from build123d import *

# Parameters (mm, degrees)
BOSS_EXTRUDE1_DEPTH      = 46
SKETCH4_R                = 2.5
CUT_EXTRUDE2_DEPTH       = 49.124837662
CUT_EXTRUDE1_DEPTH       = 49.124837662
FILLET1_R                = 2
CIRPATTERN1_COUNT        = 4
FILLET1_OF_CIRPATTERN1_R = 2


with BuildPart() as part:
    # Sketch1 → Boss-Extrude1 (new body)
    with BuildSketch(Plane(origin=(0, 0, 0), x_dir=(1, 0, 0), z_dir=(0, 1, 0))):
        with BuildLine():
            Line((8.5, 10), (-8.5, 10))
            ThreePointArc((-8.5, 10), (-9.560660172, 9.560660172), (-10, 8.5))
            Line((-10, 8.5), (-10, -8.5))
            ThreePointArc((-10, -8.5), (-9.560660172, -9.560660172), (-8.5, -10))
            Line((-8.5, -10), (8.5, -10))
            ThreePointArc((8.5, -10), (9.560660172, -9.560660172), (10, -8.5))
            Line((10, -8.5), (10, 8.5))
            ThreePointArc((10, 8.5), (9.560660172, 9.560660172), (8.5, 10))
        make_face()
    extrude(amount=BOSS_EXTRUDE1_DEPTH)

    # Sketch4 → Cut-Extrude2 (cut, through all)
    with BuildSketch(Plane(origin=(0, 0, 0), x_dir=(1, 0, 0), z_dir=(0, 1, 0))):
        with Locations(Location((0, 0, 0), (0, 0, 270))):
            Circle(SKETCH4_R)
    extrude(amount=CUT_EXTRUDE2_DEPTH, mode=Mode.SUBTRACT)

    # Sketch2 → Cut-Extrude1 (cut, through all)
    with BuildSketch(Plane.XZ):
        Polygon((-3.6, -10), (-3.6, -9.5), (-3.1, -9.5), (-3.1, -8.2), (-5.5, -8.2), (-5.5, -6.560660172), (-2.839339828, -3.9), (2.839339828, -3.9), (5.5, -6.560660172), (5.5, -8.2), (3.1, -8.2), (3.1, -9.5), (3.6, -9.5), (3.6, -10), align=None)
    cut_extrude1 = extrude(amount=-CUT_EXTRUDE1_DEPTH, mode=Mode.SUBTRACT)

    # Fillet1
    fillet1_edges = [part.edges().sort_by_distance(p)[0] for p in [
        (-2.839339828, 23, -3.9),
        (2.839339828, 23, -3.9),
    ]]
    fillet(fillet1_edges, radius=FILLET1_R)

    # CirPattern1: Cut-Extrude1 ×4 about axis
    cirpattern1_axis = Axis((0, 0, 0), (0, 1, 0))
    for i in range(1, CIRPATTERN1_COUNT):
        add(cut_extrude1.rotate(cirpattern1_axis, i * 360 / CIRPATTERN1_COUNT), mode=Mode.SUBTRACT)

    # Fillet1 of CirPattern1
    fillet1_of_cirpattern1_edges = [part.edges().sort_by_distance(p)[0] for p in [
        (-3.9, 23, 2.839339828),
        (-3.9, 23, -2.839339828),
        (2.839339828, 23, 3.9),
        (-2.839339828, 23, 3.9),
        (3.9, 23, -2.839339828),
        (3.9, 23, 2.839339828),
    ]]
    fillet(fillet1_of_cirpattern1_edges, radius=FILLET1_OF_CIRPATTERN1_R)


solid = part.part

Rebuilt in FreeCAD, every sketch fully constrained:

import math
import FreeCAD as App
import Part
import Sketcher


def edges_at(feature, points):
    """Names of the edges that pass closest to the given points."""
    edges = feature.Shape.Edges
    near = lambda p: min(range(len(edges)), key=lambda i: edges[i].distToShape(Part.Vertex(*p))[0])
    return sorted({f"Edge{near(p) + 1}" for p in points})

doc = App.newDocument("Part")
body = doc.addObject("PartDesign::Body", "Body")

# Sketch on XZ plane
sketch1 = body.newObject("Sketcher::SketchObject", "Sketch")
sketch1.AttachmentSupport = (doc.getObject("XZ_Plane"), [""])
sketch1.MapMode = "FlatFace"
sketch1.addGeometry([
    Part.LineSegment(App.Vector(8.5, -10, 0), App.Vector(-8.5, -10, 0)),  # 0
    Part.ArcOfCircle(Part.Circle(App.Vector(-8.5, -8.5, 0), App.Vector(0, 0, 1), 1.5), math.radians(180), math.radians(270)),  # 1
    Part.LineSegment(App.Vector(-10, -8.5, 0), App.Vector(-10, 8.5, 0)),  # 2
    Part.ArcOfCircle(Part.Circle(App.Vector(-8.5, 8.5, 0), App.Vector(0, 0, 1), 1.5), math.radians(90), math.radians(180)),  # 3
    Part.LineSegment(App.Vector(-8.5, 10, 0), App.Vector(8.5, 10, 0)),  # 4
    Part.ArcOfCircle(Part.Circle(App.Vector(8.5, 8.5, 0), App.Vector(0, 0, 1), 1.5), math.radians(0), math.radians(90)),  # 5
    Part.LineSegment(App.Vector(10, 8.5, 0), App.Vector(10, -8.5, 0)),  # 6
    Part.ArcOfCircle(Part.Circle(App.Vector(8.5, -8.5, 0), App.Vector(0, 0, 1), 1.5), math.radians(-90), math.radians(0)),  # 7
], False)
sketch1.addConstraint([
    Sketcher.Constraint("Tangent", 0, 2, 1, 2),
    Sketcher.Constraint("Tangent", 1, 1, 2, 1),
    Sketcher.Constraint("Tangent", 2, 2, 3, 2),
    Sketcher.Constraint("Tangent", 3, 1, 4, 1),
    Sketcher.Constraint("Tangent", 4, 2, 5, 2),
    Sketcher.Constraint("Tangent", 5, 1, 6, 1),
    Sketcher.Constraint("Tangent", 6, 2, 7, 2),
    Sketcher.Constraint("Tangent", 7, 1, 0, 1),
    Sketcher.Constraint("Horizontal", 0),
    Sketcher.Constraint("Vertical", 2),
    Sketcher.Constraint("Horizontal", 4),
    Sketcher.Constraint("Vertical", 6),
    Sketcher.Constraint("Equal", 1, 3),
    Sketcher.Constraint("Equal", 3, 5),
    Sketcher.Constraint("Equal", 5, 7),
    Sketcher.Constraint("Symmetric", 1, 3, 5, 3, -1, 1),
    Sketcher.Constraint("Equal", 4, 2),
    Sketcher.Constraint("Radius", 1, 1.5),
    Sketcher.Constraint("DistanceX", 0, 2, 0, 1, 17.0),
])
pad1 = body.newObject("PartDesign::Pad", "Pad")
pad1.Profile = sketch1
pad1.Length = 46
pad1.Reversed = True

# Sketch on XZ plane
sketch2 = body.newObject("Sketcher::SketchObject", "Sketch001")
sketch2.AttachmentSupport = (doc.getObject("XZ_Plane"), [""])
sketch2.MapMode = "FlatFace"
sketch2.addGeometry(Part.Circle(App.Vector(0, 0, 0), App.Vector(0, 0, 1), 2.5), False)
sketch2.addConstraint([
    Sketcher.Constraint("Coincident", 0, 3, -1, 1),
    Sketcher.Constraint("Diameter", 0, 5.0),
])
pocket1 = body.newObject("PartDesign::Pocket", "Pocket")
pocket1.Profile = sketch2
pocket1.Type = "ThroughAll"

# Sketch on XZ plane
sketch3 = body.newObject("Sketcher::SketchObject", "Sketch002")
sketch3.AttachmentSupport = (doc.getObject("XZ_Plane"), [""])
sketch3.MapMode = "FlatFace"
sketch3.addGeometry([
    Part.LineSegment(App.Vector(-3.6, -9.5, 0), App.Vector(-3.6, -10, 0)),  # 0
    Part.LineSegment(App.Vector(-3.6, -10, 0), App.Vector(3.6, -10, 0)),  # 1
    Part.LineSegment(App.Vector(3.6, -10, 0), App.Vector(3.6, -9.5, 0)),  # 2
    Part.LineSegment(App.Vector(3.6, -9.5, 0), App.Vector(3.1, -9.5, 0)),  # 3
    Part.LineSegment(App.Vector(3.1, -9.5, 0), App.Vector(3.1, -8.2, 0)),  # 4
    Part.LineSegment(App.Vector(3.1, -8.2, 0), App.Vector(5.5, -8.2, 0)),  # 5
    Part.LineSegment(App.Vector(5.5, -8.2, 0), App.Vector(5.5, -6.6, 0)),  # 6
    Part.LineSegment(App.Vector(5.5, -6.6, 0), App.Vector(2.8, -3.9, 0)),  # 7
    Part.LineSegment(App.Vector(2.8, -3.9, 0), App.Vector(-2.8, -3.9, 0)),  # 8
    Part.LineSegment(App.Vector(-2.8, -3.9, 0), App.Vector(-5.5, -6.6, 0)),  # 9
    Part.LineSegment(App.Vector(-5.5, -6.6, 0), App.Vector(-5.5, -8.2, 0)),  # 10
    Part.LineSegment(App.Vector(-5.5, -8.2, 0), App.Vector(-3.1, -8.2, 0)),  # 11
    Part.LineSegment(App.Vector(-3.1, -8.2, 0), App.Vector(-3.1, -9.5, 0)),  # 12
    Part.LineSegment(App.Vector(-3.1, -9.5, 0), App.Vector(-3.6, -9.5, 0)),  # 13
], False)
sketch3.addConstraint([
    Sketcher.Constraint("Coincident", 0, 2, 1, 1),
    Sketcher.Constraint("Coincident", 1, 2, 2, 1),
    Sketcher.Constraint("Coincident", 2, 2, 3, 1),
    Sketcher.Constraint("Coincident", 3, 2, 4, 1),
    Sketcher.Constraint("Coincident", 4, 2, 5, 1),
    Sketcher.Constraint("Coincident", 5, 2, 6, 1),
    Sketcher.Constraint("Coincident", 6, 2, 7, 1),
    Sketcher.Constraint("Coincident", 7, 2, 8, 1),
    Sketcher.Constraint("Coincident", 8, 2, 9, 1),
    Sketcher.Constraint("Coincident", 9, 2, 10, 1),
    Sketcher.Constraint("Coincident", 10, 2, 11, 1),
    Sketcher.Constraint("Coincident", 11, 2, 12, 1),
    Sketcher.Constraint("Coincident", 12, 2, 13, 1),
    Sketcher.Constraint("Coincident", 13, 2, 0, 1),
    Sketcher.Constraint("Vertical", 0),
    Sketcher.Constraint("Horizontal", 1),
    Sketcher.Constraint("Vertical", 2),
    Sketcher.Constraint("Horizontal", 3),
    Sketcher.Constraint("Vertical", 4),
    Sketcher.Constraint("Horizontal", 5),
    Sketcher.Constraint("Vertical", 6),
    Sketcher.Constraint("Horizontal", 8),
    Sketcher.Constraint("Vertical", 10),
    Sketcher.Constraint("Horizontal", 11),
    Sketcher.Constraint("Vertical", 12),
    Sketcher.Constraint("Horizontal", 13),
    Sketcher.Constraint("Symmetric", 6, 2, 9, 2, -2),
    Sketcher.Constraint("Symmetric", 4, 2, 11, 2, -2),
    Sketcher.Constraint("Symmetric", 2, 2, 13, 2, -2),
    Sketcher.Constraint("Perpendicular", 7, 9),
    Sketcher.Constraint("Equal", 13, 0),
    Sketcher.Constraint("Equal", 7, 9),
    Sketcher.Constraint("DistanceX", 1, 1, 1, 2, 7.2),
    Sketcher.Constraint("DistanceX", 3, 2, 3, 1, 0.5),
    Sketcher.Constraint("DistanceX", 5, 1, 5, 2, 2.4),
    Sketcher.Constraint("DistanceY", 4, 1, 4, 2, 1.3),
    Sketcher.Constraint("DistanceY", 0, 2, -1, 1, 10.0),
    Sketcher.Constraint("DistanceY", 7, 2, -1, 1, 3.9),
    Sketcher.Constraint("DistanceX", 8, 2, 8, 1, 5.67868),
])
pocket2 = body.newObject("PartDesign::Pocket", "Pocket001")
pocket2.Profile = sketch3
pocket2.Type = "ThroughAll"
doc.recompute()

fillet = body.newObject("PartDesign::Fillet", "Fillet")
fillet.Base = (pocket2, edges_at(pocket2, [(-2.839, 23, -3.9), (2.839, 23, -3.9)]))
fillet.Radius = 2
doc.recompute()

polarpattern = body.newObject("PartDesign::PolarPattern", "PolarPattern")
polarpattern.Originals = [pocket2]
polarpattern.Axis = (doc.getObject("Y_Axis"), [""])
polarpattern.Angle = 360
polarpattern.Occurrences = 4
body.Tip = polarpattern
doc.recompute()

fillet2 = body.newObject("PartDesign::Fillet", "Fillet001")
fillet2.Base = (polarpattern, edges_at(polarpattern, [
    (-3.9, 23, 2.839),
    (-3.9, 23, -2.839),
    (2.839, 23, 3.9),
    (-2.839, 23, 3.9),
    (3.9, 23, -2.839),
    (3.9, 23, 2.839),
]))
fillet2.Radius = 2

doc.recompute()
